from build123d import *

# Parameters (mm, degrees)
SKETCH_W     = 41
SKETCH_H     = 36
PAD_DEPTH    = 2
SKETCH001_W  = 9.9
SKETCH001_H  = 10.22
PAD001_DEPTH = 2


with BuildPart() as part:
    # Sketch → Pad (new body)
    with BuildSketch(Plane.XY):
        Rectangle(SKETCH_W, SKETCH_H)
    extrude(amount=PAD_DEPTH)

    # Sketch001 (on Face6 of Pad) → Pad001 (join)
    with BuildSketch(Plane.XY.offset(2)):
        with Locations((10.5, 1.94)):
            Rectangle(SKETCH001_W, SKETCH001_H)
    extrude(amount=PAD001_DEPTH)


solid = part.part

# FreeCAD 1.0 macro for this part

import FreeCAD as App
import Part
import Sketcher


def add_polygon(sketch, points):
    """Adds a closed chain of lines whose ends are joined by coincident constraints."""
    first, n = sketch.GeometryCount, len(points)
    for a, b in zip(points, points[1:] + points[:1]):
        sketch.addGeometry(Part.LineSegment(App.Vector(*a, 0), App.Vector(*b, 0)), False)
    for i in range(n):
        sketch.addConstraint(Sketcher.Constraint("Coincident", first + i, 2, first + (i + 1) % n, 1))

doc = App.newDocument("Part")
body = doc.addObject("PartDesign::Body", "Body")

# Sketch on XY plane
sketch1 = body.newObject("Sketcher::SketchObject", "Sketch")
sketch1.AttachmentSupport = (doc.getObject("XY_Plane"), [""])
sketch1.MapMode = "FlatFace"
add_polygon(sketch1, [(-20, 18), (-20, -18), (20, -18), (20, 18)])  # lines 0-3
sketch1.addConstraint([
    Sketcher.Constraint("Vertical", 0),
    Sketcher.Constraint("Horizontal", 1),
    Sketcher.Constraint("Vertical", 2),
    Sketcher.Constraint("Horizontal", 3),
    Sketcher.Constraint("Symmetric", 0, 2, 2, 2, -1, 1),
    Sketcher.Constraint("DistanceX", 1, 1, 1, 2, 41.0),
    Sketcher.Constraint("DistanceY", 0, 2, 0, 1, 36.0),
])
pad1 = body.newObject("PartDesign::Pad", "Pad")
pad1.Profile = sketch1
pad1.Length = 2

# Sketch on XY plane
sketch2 = body.newObject("Sketcher::SketchObject", "Sketch001")
sketch2.AttachmentSupport = (doc.getObject("XY_Plane"), [""])
sketch2.MapMode = "FlatFace"
sketch2.AttachmentOffset = App.Placement(App.Vector(0, 0, 2), App.Rotation())
add_polygon(sketch2, [(6, 7), (6, -3), (15, -3), (15, 7)])  # lines 0-3
sketch2.addConstraint([
    Sketcher.Constraint("Vertical", 0),
    Sketcher.Constraint("Horizontal", 1),
    Sketcher.Constraint("Vertical", 2),
    Sketcher.Constraint("Horizontal", 3),
    Sketcher.Constraint("DistanceX", 1, 1, 1, 2, 9.9),
    Sketcher.Constraint("DistanceY", 0, 2, 0, 1, 10.22),
    Sketcher.Constraint("DistanceX", -1, 1, 0, 2, 5.55),
    Sketcher.Constraint("DistanceY", 0, 2, -1, 1, 3.17),
])
pad2 = body.newObject("PartDesign::Pad", "Pad001")
pad2.Profile = sketch2
pad2.Length = 2

doc.recompute()
